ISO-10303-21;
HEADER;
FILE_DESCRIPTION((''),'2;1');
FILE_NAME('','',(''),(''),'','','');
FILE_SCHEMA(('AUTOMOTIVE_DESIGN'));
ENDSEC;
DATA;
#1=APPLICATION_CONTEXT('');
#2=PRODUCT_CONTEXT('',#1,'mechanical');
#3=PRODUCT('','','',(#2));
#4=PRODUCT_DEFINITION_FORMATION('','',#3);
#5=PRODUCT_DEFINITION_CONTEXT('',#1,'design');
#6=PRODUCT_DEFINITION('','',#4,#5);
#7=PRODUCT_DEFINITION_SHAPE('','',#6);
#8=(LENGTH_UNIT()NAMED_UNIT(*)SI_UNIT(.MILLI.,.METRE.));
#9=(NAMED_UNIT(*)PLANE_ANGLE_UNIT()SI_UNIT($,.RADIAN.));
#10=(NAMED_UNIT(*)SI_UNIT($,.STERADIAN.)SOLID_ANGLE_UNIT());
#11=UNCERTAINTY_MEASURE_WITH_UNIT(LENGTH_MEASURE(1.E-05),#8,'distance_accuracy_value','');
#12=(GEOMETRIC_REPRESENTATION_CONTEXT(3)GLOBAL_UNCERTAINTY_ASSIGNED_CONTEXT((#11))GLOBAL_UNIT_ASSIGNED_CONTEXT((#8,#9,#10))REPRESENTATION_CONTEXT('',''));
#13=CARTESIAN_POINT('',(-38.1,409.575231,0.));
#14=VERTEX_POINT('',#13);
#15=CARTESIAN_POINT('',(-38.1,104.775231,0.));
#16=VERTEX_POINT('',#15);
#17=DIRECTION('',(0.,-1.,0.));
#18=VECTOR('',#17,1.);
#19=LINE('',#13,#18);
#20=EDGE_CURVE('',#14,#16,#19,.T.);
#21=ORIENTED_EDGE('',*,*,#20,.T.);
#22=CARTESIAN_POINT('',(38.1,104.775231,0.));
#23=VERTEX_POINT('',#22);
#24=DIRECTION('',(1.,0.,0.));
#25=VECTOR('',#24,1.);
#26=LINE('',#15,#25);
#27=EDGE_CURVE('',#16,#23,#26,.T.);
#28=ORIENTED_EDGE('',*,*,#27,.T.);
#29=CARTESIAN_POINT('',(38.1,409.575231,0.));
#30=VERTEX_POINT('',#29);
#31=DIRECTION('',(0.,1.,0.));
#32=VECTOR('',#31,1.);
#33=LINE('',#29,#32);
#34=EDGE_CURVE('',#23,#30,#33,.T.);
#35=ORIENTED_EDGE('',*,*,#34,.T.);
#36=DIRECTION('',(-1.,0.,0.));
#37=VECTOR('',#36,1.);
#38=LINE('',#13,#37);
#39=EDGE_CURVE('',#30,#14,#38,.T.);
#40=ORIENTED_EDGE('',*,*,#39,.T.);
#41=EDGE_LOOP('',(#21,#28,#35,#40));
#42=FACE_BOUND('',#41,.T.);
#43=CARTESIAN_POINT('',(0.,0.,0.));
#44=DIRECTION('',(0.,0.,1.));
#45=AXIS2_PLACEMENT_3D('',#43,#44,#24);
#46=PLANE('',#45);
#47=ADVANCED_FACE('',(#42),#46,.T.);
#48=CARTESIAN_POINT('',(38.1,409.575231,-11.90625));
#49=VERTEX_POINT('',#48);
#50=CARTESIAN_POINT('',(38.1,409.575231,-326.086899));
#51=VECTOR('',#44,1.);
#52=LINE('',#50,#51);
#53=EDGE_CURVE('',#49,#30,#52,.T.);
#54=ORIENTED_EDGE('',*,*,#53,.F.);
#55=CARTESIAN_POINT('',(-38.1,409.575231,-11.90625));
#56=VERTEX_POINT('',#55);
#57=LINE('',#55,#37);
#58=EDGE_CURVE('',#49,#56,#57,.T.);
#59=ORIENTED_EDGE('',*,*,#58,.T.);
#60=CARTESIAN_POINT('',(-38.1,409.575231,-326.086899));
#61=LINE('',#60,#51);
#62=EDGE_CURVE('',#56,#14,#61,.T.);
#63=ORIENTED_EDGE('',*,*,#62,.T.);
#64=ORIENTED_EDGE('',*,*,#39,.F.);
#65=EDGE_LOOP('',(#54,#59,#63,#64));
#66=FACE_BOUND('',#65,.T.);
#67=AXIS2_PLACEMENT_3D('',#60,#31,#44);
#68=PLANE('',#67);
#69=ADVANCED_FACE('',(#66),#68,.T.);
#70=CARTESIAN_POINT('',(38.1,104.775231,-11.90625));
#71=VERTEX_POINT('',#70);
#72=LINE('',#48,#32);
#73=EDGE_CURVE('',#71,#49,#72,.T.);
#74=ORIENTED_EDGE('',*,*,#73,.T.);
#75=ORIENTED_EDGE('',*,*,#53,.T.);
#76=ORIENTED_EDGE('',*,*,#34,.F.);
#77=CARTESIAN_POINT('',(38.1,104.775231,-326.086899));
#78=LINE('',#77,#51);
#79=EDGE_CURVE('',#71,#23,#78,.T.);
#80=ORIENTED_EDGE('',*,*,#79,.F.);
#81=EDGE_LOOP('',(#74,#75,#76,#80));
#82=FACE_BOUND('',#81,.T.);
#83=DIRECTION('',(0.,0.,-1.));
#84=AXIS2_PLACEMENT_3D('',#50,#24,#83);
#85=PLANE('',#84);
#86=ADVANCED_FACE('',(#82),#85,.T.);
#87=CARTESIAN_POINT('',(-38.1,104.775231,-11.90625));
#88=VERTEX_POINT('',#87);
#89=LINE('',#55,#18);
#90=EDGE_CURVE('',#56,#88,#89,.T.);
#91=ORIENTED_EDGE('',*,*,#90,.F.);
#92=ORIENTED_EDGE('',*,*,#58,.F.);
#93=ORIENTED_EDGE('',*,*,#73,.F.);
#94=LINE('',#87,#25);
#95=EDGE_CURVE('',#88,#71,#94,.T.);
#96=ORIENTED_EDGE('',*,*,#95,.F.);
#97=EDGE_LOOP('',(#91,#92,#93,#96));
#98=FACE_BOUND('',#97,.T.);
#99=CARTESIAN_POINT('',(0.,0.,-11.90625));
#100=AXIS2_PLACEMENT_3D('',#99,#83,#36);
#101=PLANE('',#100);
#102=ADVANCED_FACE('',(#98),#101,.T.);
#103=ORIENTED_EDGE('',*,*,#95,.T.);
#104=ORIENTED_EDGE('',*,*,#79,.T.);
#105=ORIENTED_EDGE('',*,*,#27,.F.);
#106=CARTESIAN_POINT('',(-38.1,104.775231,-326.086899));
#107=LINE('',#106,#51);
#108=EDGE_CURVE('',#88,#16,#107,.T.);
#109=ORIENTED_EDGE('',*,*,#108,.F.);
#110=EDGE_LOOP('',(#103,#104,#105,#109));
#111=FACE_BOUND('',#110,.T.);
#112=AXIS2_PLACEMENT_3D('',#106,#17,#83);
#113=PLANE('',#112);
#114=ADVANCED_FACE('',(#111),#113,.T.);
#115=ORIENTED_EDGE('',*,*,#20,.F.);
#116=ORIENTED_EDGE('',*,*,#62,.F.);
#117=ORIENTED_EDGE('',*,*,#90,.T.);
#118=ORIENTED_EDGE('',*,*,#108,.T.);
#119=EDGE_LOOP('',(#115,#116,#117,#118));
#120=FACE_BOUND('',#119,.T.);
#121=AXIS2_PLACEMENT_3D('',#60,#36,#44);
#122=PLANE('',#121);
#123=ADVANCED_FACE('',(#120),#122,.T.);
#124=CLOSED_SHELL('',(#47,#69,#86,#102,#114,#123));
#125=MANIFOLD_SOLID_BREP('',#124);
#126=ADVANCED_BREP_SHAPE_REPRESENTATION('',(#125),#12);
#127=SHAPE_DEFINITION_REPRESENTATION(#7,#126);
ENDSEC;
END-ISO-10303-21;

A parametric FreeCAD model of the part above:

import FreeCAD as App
import Part
import Sketcher

V = App.Vector
Q = App.Units.Quantity


def add_polygon(sketch, points):
    """Adds a closed chain of lines whose ends are joined by coincident constraints."""
    first, n = sketch.GeometryCount, len(points)
    for a, b in zip(points, points[1:] + points[:1]):
        sketch.addGeometry(Part.LineSegment(App.Vector(*a, 0), App.Vector(*b, 0)), False)
    for i in range(n):
        sketch.addConstraint(Sketcher.Constraint("Coincident", first + i, 2, first + (i + 1) % n, 1))

doc = App.newDocument("Part")
params = doc.addObject("Spreadsheet::Sheet", "Params")
for row, (alias, value) in enumerate([
    ("sketch1_width", "3 in"),
    ("sketch1_height", "12 in"),
    ("pad1_length", "0.46875 in"),
], start=1):
    params.set(f"A{row}", alias)
    params.set(f"B{row}", "=" + value)
    params.setAlias(f"B{row}", alias)

body = doc.addObject("PartDesign::Body", "Body")

# Sketch on XY plane
sketch1 = body.newObject("Sketcher::SketchObject", "Sketch")
sketch1.AttachmentSupport = (doc.getObject("XY_Plane"), [""])
sketch1.MapMode = "FlatFace"
add_polygon(sketch1, [(-38.1, 409.575231), (-38.1, 104.775231), (38.1, 104.775231), (38.1, 409.575231)])  # lines 0-3
sketch1.addConstraint(Sketcher.Constraint("Vertical", 0))
sketch1.addConstraint(Sketcher.Constraint("Horizontal", 1))
sketch1.addConstraint(Sketcher.Constraint("Vertical", 2))
sketch1.addConstraint(Sketcher.Constraint("Horizontal", 3))
sketch1.addConstraint(Sketcher.Constraint("DistanceX", 1, 1, 1, 2, Q("3 in")))
sketch1.addConstraint(Sketcher.Constraint("DistanceY", 0, 2, 0, 1, Q("12 in")))
sketch1.addConstraint(Sketcher.Constraint("DistanceX", 0, 2, -1, 1, Q("1.5 in")))
sketch1.addConstraint(Sketcher.Constraint("DistanceY", -1, 1, 0, 2, 104.775231))
sketch1.setExpression("Constraints[8]", "Params.sketch1_width")
sketch1.setExpression("Constraints[9]", "Params.sketch1_height")
pad1 = body.newObject("PartDesign::Pad", "Pad")
pad1.Profile = sketch1
pad1.setExpression("Length", "Params.pad1_length")
pad1.Reversed = True

doc.recompute()
